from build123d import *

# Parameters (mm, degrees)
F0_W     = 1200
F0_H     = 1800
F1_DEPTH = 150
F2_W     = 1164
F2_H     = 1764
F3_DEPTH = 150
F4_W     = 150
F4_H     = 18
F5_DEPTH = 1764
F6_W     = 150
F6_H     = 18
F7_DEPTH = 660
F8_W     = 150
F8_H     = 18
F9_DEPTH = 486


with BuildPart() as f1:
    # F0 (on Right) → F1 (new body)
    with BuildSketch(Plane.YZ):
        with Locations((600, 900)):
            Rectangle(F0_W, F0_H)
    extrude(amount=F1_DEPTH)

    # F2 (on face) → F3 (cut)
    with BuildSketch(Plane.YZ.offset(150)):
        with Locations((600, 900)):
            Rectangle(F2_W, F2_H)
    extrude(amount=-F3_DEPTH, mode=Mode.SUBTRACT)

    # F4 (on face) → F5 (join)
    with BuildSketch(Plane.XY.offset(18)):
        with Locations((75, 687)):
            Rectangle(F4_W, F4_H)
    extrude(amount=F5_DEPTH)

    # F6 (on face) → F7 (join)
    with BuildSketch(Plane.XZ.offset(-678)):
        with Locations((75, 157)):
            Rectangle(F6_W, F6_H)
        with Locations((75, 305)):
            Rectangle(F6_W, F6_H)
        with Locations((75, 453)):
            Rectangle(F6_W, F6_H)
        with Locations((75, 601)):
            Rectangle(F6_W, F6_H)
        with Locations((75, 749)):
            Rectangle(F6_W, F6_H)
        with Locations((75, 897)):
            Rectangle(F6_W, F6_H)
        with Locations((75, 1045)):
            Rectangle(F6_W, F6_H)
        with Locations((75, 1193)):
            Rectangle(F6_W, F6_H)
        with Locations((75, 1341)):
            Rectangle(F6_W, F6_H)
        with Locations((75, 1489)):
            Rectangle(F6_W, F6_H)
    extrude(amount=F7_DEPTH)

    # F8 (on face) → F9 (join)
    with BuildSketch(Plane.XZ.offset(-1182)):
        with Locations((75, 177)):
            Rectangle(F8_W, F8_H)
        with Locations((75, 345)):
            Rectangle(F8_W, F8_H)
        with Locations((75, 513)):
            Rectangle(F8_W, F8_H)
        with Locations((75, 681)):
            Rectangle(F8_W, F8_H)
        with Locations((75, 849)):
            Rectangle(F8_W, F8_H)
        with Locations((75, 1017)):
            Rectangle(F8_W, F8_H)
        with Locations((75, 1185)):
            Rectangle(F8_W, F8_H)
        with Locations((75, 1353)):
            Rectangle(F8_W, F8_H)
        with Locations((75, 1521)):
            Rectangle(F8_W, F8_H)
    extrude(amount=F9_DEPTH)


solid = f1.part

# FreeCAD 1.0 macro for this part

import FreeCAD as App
import Part
import Sketcher
from FreeCAD import Vector
Q = App.Units.Quantity


def add_polygon(sketch, points):
    """Adds a closed chain of lines whose ends are joined by coincident constraints."""
    first, n = sketch.GeometryCount, len(points)
    for a, b in zip(points, points[1:] + points[:1]):
        sketch.addGeometry(Part.LineSegment(App.Vector(*a, 0), App.Vector(*b, 0)), False)
    for i in range(n):
        sketch.addConstraint(Sketcher.Constraint("Coincident", first + i, 2, first + (i + 1) % n, 1))

doc = App.newDocument("Part")
params = doc.addObject("Spreadsheet::Sheet", "Params")
for row, (alias, value) in enumerate([
    ("sketch1_width", "1200 mm"),
    ("sketch1_height", "1800 mm"),
    ("pad1_length", "150 mm"),
    ("sketch2_width", "1164 mm"),
    ("sketch2_height", "1764 mm"),
    ("pocket1_length", "150 mm"),
    ("sketch3_width", "150 mm"),
    ("sketch3_height", "18 mm"),
    ("pad2_length", "1764 mm"),
    ("sketch4_width", "150 mm"),
    ("sketch4_height", "18 mm"),
    ("pad3_length", "660 mm"),
    ("sketch5_width", "150 mm"),
    ("sketch5_height", "18 mm"),
    ("pad4_length", "486 mm"),
], start=1):
    params.set(f"A{row}", alias)
    params.set(f"B{row}", "=" + value)
    params.setAlias(f"B{row}", alias)

body = doc.addObject("PartDesign::Body", "Body")

sketch1 = doc.addObject("Sketcher::SketchObject", "Sketch")
body.addObject(sketch1)
sketch1.AttachmentSupport = (doc.YZ_Plane, [""])
sketch1.MapMode = "FlatFace"
add_polygon(sketch1, [(0, 1800), (0, 0), (1200, 0), (1200, 1800)])
sketch1.addConstraint([
    Sketcher.Constraint("Vertical", 0),
    Sketcher.Constraint("Horizontal", 1),
    Sketcher.Constraint("Vertical", 2),
    Sketcher.Constraint("Horizontal", 3),
    Sketcher.Constraint("Coincident", 0, 2, -1, 1),
    Sketcher.Constraint("DistanceX", 1, 1, 1, 2, Q("1200 mm")),
    Sketcher.Constraint("DistanceY", 0, 2, 0, 1, Q("1800 mm")),
])
sketch1.setExpression("Constraints[9]", "Params.sketch1_width")
sketch1.setExpression("Constraints[10]", "Params.sketch1_height")
pad1 = doc.addObject("PartDesign::Pad", "Pad")
body.addObject(pad1)
pad1.Profile = sketch1
pad1.setExpression("Length", "Params.pad1_length")

sketch2 = doc.addObject("Sketcher::SketchObject", "Sketch001")
body.addObject(sketch2)
sketch2.AttachmentSupport = (doc.YZ_Plane, [""])
sketch2.MapMode = "FlatFace"
sketch2.AttachmentOffset = App.Placement(Vector(0, 0, 150), App.Rotation())
add_polygon(sketch2, [(18, 1782), (18, 18), (1182, 18), (1182, 1782)])
sketch2.addConstraint([
    Sketcher.Constraint("Vertical", 0),
    Sketcher.Constraint("Horizontal", 1),
    Sketcher.Constraint("Vertical", 2),
    Sketcher.Constraint("Horizontal", 3),
    Sketcher.Constraint("DistanceX", 1, 1, 1, 2, Q("1164 mm")),
    Sketcher.Constraint("DistanceY", 0, 2, 0, 1, Q("1764 mm")),
    Sketcher.Constraint("DistanceX", -1, 1, 0, 2, Q("18 mm")),
    Sketcher.Constraint("DistanceY", -1, 1, 0, 2, Q("18 mm")),
])
sketch2.setExpression("Constraints[8]", "Params.sketch2_width")
sketch2.setExpression("Constraints[9]", "Params.sketch2_height")
pocket1 = doc.addObject("PartDesign::Pocket", "Pocket")
body.addObject(pocket1)
pocket1.Profile = sketch2
pocket1.setExpression("Length", "Params.pocket1_length")

sketch3 = doc.addObject("Sketcher::SketchObject", "Sketch002")
body.addObject(sketch3)
sketch3.AttachmentSupport = (doc.XY_Plane, [""])
sketch3.MapMode = "FlatFace"
sketch3.AttachmentOffset = App.Placement(Vector(0, 0, 18), App.Rotation())
add_polygon(sketch3, [(0, 696), (0, 678), (150, 678), (150, 696)])
sketch3.addConstraint([
    Sketcher.Constraint("Vertical", 0),
    Sketcher.Constraint("Horizontal", 1),
    Sketcher.Constraint("Vertical", 2),
    Sketcher.Constraint("Horizontal", 3),
    Sketcher.Constraint("PointOnObject", 0, 2, -2),
    Sketcher.Constraint("DistanceX", 1, 1, 1, 2, Q("150 mm")),
    Sketcher.Constraint("DistanceY", 0, 2, 0, 1, Q("18 mm")),
    Sketcher.Constraint("DistanceY", -1, 1, 0, 2, Q("678 mm")),
])
sketch3.setExpression("Constraints[9]", "Params.sketch3_width")
sketch3.setExpression("Constraints[10]", "Params.sketch3_height")
pad2 = doc.addObject("PartDesign::Pad", "Pad001")
body.addObject(pad2)
pad2.Profile = sketch3
pad2.setExpression("Length", "Params.pad2_length")

sketch4 = doc.addObject("Sketcher::SketchObject", "Sketch003")
body.addObject(sketch4)
sketch4.AttachmentSupport = (doc.XZ_Plane, [""])
sketch4.MapMode = "FlatFace"
sketch4.AttachmentOffset = App.Placement(Vector(0, 0, -678), App.Rotation())
add_polygon(sketch4, [(0, 166), (0, 148), (150, 148), (150, 166)])
add_polygon(sketch4, [(0, 314), (0, 296), (150, 296), (150, 314)])
add_polygon(sketch4, [(0, 462), (0, 444), (150, 444), (150, 462)])
add_polygon(sketch4, [(0, 610), (0, 592), (150, 592), (150, 610)])
add_polygon(sketch4, [(0, 758), (0, 740), (150, 740), (150, 758)])
add_polygon(sketch4, [(0, 906), (0, 888), (150, 888), (150, 906)])
add_polygon(sketch4, [(0, 1054), (0, 1036), (150, 1036), (150, 1054)])
add_polygon(sketch4, [(0, 1202), (0, 1184), (150, 1184), (150, 1202)])
add_polygon(sketch4, [(0, 1350), (0, 1332), (150, 1332), (150, 1350)])
add_polygon(sketch4, [(0, 1498), (0, 1480), (150, 1480), (150, 1498)])
sketch4.addConstraint([
    Sketcher.Constraint("Vertical", 0),
    Sketcher.Constraint("Horizontal", 1),
    Sketcher.Constraint("Vertical", 2),
    Sketcher.Constraint("Horizontal", 3),
    Sketcher.Constraint("Vertical", 4),
    Sketcher.Constraint("Horizontal", 5),
    Sketcher.Constraint("Vertical", 6),
    Sketcher.Constraint("Horizontal", 7),
    Sketcher.Constraint("Vertical", 8),
    Sketcher.Constraint("Horizontal", 9),
    Sketcher.Constraint("Vertical", 10),
    Sketcher.Constraint("Horizontal", 11),
    Sketcher.Constraint("Vertical", 12),
    Sketcher.Constraint("Horizontal", 13),
    Sketcher.Constraint("Vertical", 14),
    Sketcher.Constraint("Horizontal", 15),
    Sketcher.Constraint("Vertical", 16),
    Sketcher.Constraint("Horizontal", 17),
    Sketcher.Constraint("Vertical", 18),
    Sketcher.Constraint("Horizontal", 19),
    Sketcher.Constraint("Vertical", 20),
    Sketcher.Constraint("Horizontal", 21),
    Sketcher.Constraint("Vertical", 22),
    Sketcher.Constraint("Horizontal", 23),
    Sketcher.Constraint("Vertical", 24),
    Sketcher.Constraint("Horizontal", 25),
    Sketcher.Constraint("Vertical", 26),
    Sketcher.Constraint("Horizontal", 27),
    Sketcher.Constraint("Vertical", 28),
    Sketcher.Constraint("Horizontal", 29),
    Sketcher.Constraint("Vertical", 30),
    Sketcher.Constraint("Horizontal", 31),
    Sketcher.Constraint("Vertical", 32),
    Sketcher.Constraint("Horizontal", 33),
    Sketcher.Constraint("Vertical", 34),
    Sketcher.Constraint("Horizontal", 35),
    Sketcher.Constraint("Vertical", 36),
    Sketcher.Constraint("Horizontal", 37),
    Sketcher.Constraint("Vertical", 38),
    Sketcher.Constraint("Horizontal", 39),
    Sketcher.Constraint("PointOnObject", 0, 2, -2),
    Sketcher.Constraint("PointOnObject", 4, 2, -2),
    Sketcher.Constraint("PointOnObject", 8, 2, -2),
    Sketcher.Constraint("PointOnObject", 12, 2, -2),
    Sketcher.Constraint("PointOnObject", 16, 2, -2),
    Sketcher.Constraint("PointOnObject", 20, 2, -2),
    Sketcher.Constraint("PointOnObject", 24, 2, -2),
    Sketcher.Constraint("PointOnObject", 28, 2, -2),
    Sketcher.Constraint("PointOnObject", 32, 2, -2),
    Sketcher.Constraint("PointOnObject", 36, 2, -2),
    Sketcher.Constraint("Vertical", 2, 2, 5, 2),
    Sketcher.Constraint("Vertical", 6, 2, 9, 2),
    Sketcher.Constraint("Vertical", 10, 2, 13, 2),
    Sketcher.Constraint("Vertical", 14, 2, 17, 2),
    Sketcher.Constraint("Vertical", 18, 2, 21, 2),
    Sketcher.Constraint("Vertical", 22, 2, 25, 2),
    Sketcher.Constraint("Vertical", 26, 2, 29, 2),
    Sketcher.Constraint("Vertical", 30, 2, 33, 2),
    Sketcher.Constraint("Vertical", 34, 2, 37, 2),
    Sketcher.Constraint("Equal", 2, 4),
    Sketcher.Constraint("Equal", 6, 8),
    Sketcher.Constraint("Equal", 10, 12),
    Sketcher.Constraint("Equal", 14, 16),
    Sketcher.Constraint("Equal", 18, 20),
    Sketcher.Constraint("Equal", 22, 24),
    Sketcher.Constraint("Equal", 26, 28),
    Sketcher.Constraint("Equal", 30, 32),
    Sketcher.Constraint("Equal", 34, 36),
    Sketcher.Constraint("DistanceX", 1, 1, 1, 2, Q("150 mm")),
    Sketcher.Constraint("DistanceY", 0, 2, 0, 1, Q("18 mm")),
    Sketcher.Constraint("DistanceY", -1, 1, 0, 2, Q("148 mm")),
    Sketcher.Constraint("DistanceY", -1, 1, 4, 2, Q("296 mm")),
    Sketcher.Constraint("DistanceY", -1, 1, 8, 2, Q("444 mm")),
    Sketcher.Constraint("DistanceY", -1, 1, 12, 2, Q("592 mm")),
    Sketcher.Constraint("DistanceY", -1, 1, 16, 2, Q("740 mm")),
    Sketcher.Constraint("DistanceY", -1, 1, 20, 2, Q("888 mm")),
    Sketcher.Constraint("DistanceY", -1, 1, 24, 2, Q("1036 mm")),
    Sketcher.Constraint("DistanceY", -1, 1, 28, 2, Q("1184 mm")),
    Sketcher.Constraint("DistanceY", -1, 1, 32, 2, Q("1332 mm")),
    Sketcher.Constraint("DistanceY", -1, 1, 36, 2, Q("1480 mm")),
])
sketch4.setExpression("Constraints[108]", "Params.sketch4_width")
sketch4.setExpression("Constraints[109]", "Params.sketch4_height")
pad3 = doc.addObject("PartDesign::Pad", "Pad002")
body.addObject(pad3)
pad3.Profile = sketch4
pad3.setExpression("Length", "Params.pad3_length")

sketch5 = doc.addObject("Sketcher::SketchObject", "Sketch004")
body.addObject(sketch5)
sketch5.AttachmentSupport = (doc.XZ_Plane, [""])
sketch5.MapMode = "FlatFace"
sketch5.AttachmentOffset = App.Placement(Vector(0, 0, -1182), App.Rotation())
add_polygon(sketch5, [(0, 186), (0, 168), (150, 168), (150, 186)])
add_polygon(sketch5, [(0, 354), (0, 336), (150, 336), (150, 354)])
add_polygon(sketch5, [(0, 522), (0, 504), (150, 504), (150, 522)])
add_polygon(sketch5, [(0, 690), (0, 672), (150, 672), (150, 690)])
add_polygon(sketch5, [(0, 858), (0, 840), (150, 840), (150, 858)])
add_polygon(sketch5, [(0, 1026), (0, 1008), (150, 1008), (150, 1026)])
add_polygon(sketch5, [(0, 1194), (0, 1176), (150, 1176), (150, 1194)])
add_polygon(sketch5, [(0, 1362), (0, 1344), (150, 1344), (150, 1362)])
add_polygon(sketch5, [(0, 1530), (0, 1512), (150, 1512), (150, 1530)])
sketch5.addConstraint([
    Sketcher.Constraint("Vertical", 0),
    Sketcher.Constraint("Horizontal", 1),
    Sketcher.Constraint("Vertical", 2),
    Sketcher.Constraint("Horizontal", 3),
    Sketcher.Constraint("Vertical", 4),
    Sketcher.Constraint("Horizontal", 5),
    Sketcher.Constraint("Vertical", 6),
    Sketcher.Constraint("Horizontal", 7),
    Sketcher.Constraint("Vertical", 8),
    Sketcher.Constraint("Horizontal", 9),
    Sketcher.Constraint("Vertical", 10),
    Sketcher.Constraint("Horizontal", 11),
    Sketcher.Constraint("Vertical", 12),
    Sketcher.Constraint("Horizontal", 13),
    Sketcher.Constraint("Vertical", 14),
    Sketcher.Constraint("Horizontal", 15),
    Sketcher.Constraint("Vertical", 16),
    Sketcher.Constraint("Horizontal", 17),
    Sketcher.Constraint("Vertical", 18),
    Sketcher.Constraint("Horizontal", 19),
    Sketcher.Constraint("Vertical", 20),
    Sketcher.Constraint("Horizontal", 21),
    Sketcher.Constraint("Vertical", 22),
    Sketcher.Constraint("Horizontal", 23),
    Sketcher.Constraint("Vertical", 24),
    Sketcher.Constraint("Horizontal", 25),
    Sketcher.Constraint("Vertical", 26),
    Sketcher.Constraint("Horizontal", 27),
    Sketcher.Constraint("Vertical", 28),
    Sketcher.Constraint("Horizontal", 29),
    Sketcher.Constraint("Vertical", 30),
    Sketcher.Constraint("Horizontal", 31),
    Sketcher.Constraint("Vertical", 32),
    Sketcher.Constraint("Horizontal", 33),
    Sketcher.Constraint("Vertical", 34),
    Sketcher.Constraint("Horizontal", 35),
    Sketcher.Constraint("PointOnObject", 0, 2, -2),
    Sketcher.Constraint("PointOnObject", 4, 2, -2),
    Sketcher.Constraint("PointOnObject", 8, 2, -2),
    Sketcher.Constraint("PointOnObject", 12, 2, -2),
    Sketcher.Constraint("PointOnObject", 16, 2, -2),
    Sketcher.Constraint("PointOnObject", 20, 2, -2),
    Sketcher.Constraint("PointOnObject", 24, 2, -2),
    Sketcher.Constraint("PointOnObject", 28, 2, -2),
    Sketcher.Constraint("PointOnObject", 32, 2, -2),
    Sketcher.Constraint("Vertical", 2, 2, 5, 2),
    Sketcher.Constraint("Vertical", 6, 2, 9, 2),
    Sketcher.Constraint("Vertical", 10, 2, 13, 2),
    Sketcher.Constraint("Vertical", 14, 2, 17, 2),
    Sketcher.Constraint("Vertical", 18, 2, 21, 2),
    Sketcher.Constraint("Vertical", 22, 2, 25, 2),
    Sketcher.Constraint("Vertical", 26, 2, 29, 2),
    Sketcher.Constraint("Vertical", 30, 2, 33, 2),
    Sketcher.Constraint("Equal", 2, 4),
    Sketcher.Constraint("Equal", 6, 8),
    Sketcher.Constraint("Equal", 10, 12),
    Sketcher.Constraint("Equal", 14, 16),
    Sketcher.Constraint("Equal", 18, 20),
    Sketcher.Constraint("Equal", 22, 24),
    Sketcher.Constraint("Equal", 26, 28),
    Sketcher.Constraint("Equal", 30, 32),
    Sketcher.Constraint("DistanceX", 1, 1, 1, 2, Q("150 mm")),
    Sketcher.Constraint("DistanceY", 0, 2, 0, 1, Q("18 mm")),
    Sketcher.Constraint("DistanceY", -1, 1, 0, 2, Q("168 mm")),
    Sketcher.Constraint("DistanceY", -1, 1, 4, 2, Q("336 mm")),
    Sketcher.Constraint("DistanceY", -1, 1, 8, 2, Q("504 mm")),
    Sketcher.Constraint("DistanceY", -1, 1, 12, 2, Q("672 mm")),
    Sketcher.Constraint("DistanceY", -1, 1, 16, 2, Q("840 mm")),
    Sketcher.Constraint("DistanceY", -1, 1, 20, 2, Q("1008 mm")),
    Sketcher.Constraint("DistanceY", -1, 1, 24, 2, Q("1176 mm")),
    Sketcher.Constraint("DistanceY", -1, 1, 28, 2, Q("1344 mm")),
    Sketcher.Constraint("DistanceY", -1, 1, 32, 2, Q("1512 mm")),
])
sketch5.setExpression("Constraints[97]", "Params.sketch5_width")
sketch5.setExpression("Constraints[98]", "Params.sketch5_height")
pad4 = doc.addObject("PartDesign::Pad", "Pad003")
body.addObject(pad4)
pad4.Profile = sketch5
pad4.setExpression("Length", "Params.pad4_length")

doc.recompute()
